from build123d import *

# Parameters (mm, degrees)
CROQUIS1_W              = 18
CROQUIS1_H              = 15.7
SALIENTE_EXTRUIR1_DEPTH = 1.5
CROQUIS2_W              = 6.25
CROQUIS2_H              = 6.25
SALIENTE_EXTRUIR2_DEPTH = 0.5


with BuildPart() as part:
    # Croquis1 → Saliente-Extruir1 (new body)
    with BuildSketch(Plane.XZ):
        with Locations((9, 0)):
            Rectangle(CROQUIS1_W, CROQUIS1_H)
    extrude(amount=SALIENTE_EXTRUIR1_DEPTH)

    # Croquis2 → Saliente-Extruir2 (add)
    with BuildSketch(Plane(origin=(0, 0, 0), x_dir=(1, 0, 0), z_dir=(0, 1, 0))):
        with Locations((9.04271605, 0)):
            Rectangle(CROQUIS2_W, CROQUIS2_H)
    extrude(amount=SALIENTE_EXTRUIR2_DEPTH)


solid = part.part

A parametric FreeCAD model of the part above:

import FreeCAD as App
import Part
import Sketcher

V = App.Vector


def add_polygon(sketch, points):
    """Adds a closed chain of lines whose ends are joined by coincident constraints."""
    first, n = sketch.GeometryCount, len(points)
    for a, b in zip(points, points[1:] + points[:1]):
        sketch.addGeometry(Part.LineSegment(App.Vector(*a, 0), App.Vector(*b, 0)), False)
    for i in range(n):
        sketch.addConstraint(Sketcher.Constraint("Coincident", first + i, 2, first + (i + 1) % n, 1))

doc = App.newDocument("Part")
body = doc.addObject("PartDesign::Body", "Body")

sketch1 = doc.addObject("Sketcher::SketchObject", "Sketch")
body.addObject(sketch1)
sketch1.AttachmentSupport = (doc.XZ_Plane, [""])
sketch1.MapMode = "FlatFace"
add_polygon(sketch1, [(0, 7.85), (0, -7.85), (18, -7.85), (18, 7.85)])
sketch1.addConstraint([
    Sketcher.Constraint("Vertical", 0),
    Sketcher.Constraint("Horizontal", 1),
    Sketcher.Constraint("Vertical", 2),
    Sketcher.Constraint("Horizontal", 3),
    Sketcher.Constraint("Symmetric", 0, 2, 3, 2, -1, 1),
    Sketcher.Constraint("DistanceX", 1, 1, 1, 2, 18.0),
    Sketcher.Constraint("DistanceY", 0, 2, 0, 1, 15.7),
])
pad1 = doc.addObject("PartDesign::Pad", "Pad")
body.addObject(pad1)
pad1.Profile = sketch1
pad1.Length = 1.5

sketch2 = doc.addObject("Sketcher::SketchObject", "Sketch001")
body.addObject(sketch2)
sketch2.AttachmentSupport = (doc.XZ_Plane, [""])
sketch2.MapMode = "FlatFace"
add_polygon(sketch2, [(5.917716, -3.125), (5.917716, 3.125), (12.167716, 3.125), (12.167716, -3.125)])
sketch2.addConstraint([
    Sketcher.Constraint("Vertical", 0),
    Sketcher.Constraint("Horizontal", 1),
    Sketcher.Constraint("Vertical", 2),
    Sketcher.Constraint("Horizontal", 3),
    Sketcher.Constraint("Equal", 3, 0),
    Sketcher.Constraint("DistanceX", 1, 1, 1, 2, 6.25),
    Sketcher.Constraint("DistanceY", -1, 1, 0, 2, 3.125),
    Sketcher.Constraint("DistanceX", -1, 1, 0, 2, 5.917716),
])
pad2 = doc.addObject("PartDesign::Pad", "Pad001")
body.addObject(pad2)
pad2.Profile = sketch2
pad2.Length = 0.5
pad2.Reversed = True

doc.recompute()
